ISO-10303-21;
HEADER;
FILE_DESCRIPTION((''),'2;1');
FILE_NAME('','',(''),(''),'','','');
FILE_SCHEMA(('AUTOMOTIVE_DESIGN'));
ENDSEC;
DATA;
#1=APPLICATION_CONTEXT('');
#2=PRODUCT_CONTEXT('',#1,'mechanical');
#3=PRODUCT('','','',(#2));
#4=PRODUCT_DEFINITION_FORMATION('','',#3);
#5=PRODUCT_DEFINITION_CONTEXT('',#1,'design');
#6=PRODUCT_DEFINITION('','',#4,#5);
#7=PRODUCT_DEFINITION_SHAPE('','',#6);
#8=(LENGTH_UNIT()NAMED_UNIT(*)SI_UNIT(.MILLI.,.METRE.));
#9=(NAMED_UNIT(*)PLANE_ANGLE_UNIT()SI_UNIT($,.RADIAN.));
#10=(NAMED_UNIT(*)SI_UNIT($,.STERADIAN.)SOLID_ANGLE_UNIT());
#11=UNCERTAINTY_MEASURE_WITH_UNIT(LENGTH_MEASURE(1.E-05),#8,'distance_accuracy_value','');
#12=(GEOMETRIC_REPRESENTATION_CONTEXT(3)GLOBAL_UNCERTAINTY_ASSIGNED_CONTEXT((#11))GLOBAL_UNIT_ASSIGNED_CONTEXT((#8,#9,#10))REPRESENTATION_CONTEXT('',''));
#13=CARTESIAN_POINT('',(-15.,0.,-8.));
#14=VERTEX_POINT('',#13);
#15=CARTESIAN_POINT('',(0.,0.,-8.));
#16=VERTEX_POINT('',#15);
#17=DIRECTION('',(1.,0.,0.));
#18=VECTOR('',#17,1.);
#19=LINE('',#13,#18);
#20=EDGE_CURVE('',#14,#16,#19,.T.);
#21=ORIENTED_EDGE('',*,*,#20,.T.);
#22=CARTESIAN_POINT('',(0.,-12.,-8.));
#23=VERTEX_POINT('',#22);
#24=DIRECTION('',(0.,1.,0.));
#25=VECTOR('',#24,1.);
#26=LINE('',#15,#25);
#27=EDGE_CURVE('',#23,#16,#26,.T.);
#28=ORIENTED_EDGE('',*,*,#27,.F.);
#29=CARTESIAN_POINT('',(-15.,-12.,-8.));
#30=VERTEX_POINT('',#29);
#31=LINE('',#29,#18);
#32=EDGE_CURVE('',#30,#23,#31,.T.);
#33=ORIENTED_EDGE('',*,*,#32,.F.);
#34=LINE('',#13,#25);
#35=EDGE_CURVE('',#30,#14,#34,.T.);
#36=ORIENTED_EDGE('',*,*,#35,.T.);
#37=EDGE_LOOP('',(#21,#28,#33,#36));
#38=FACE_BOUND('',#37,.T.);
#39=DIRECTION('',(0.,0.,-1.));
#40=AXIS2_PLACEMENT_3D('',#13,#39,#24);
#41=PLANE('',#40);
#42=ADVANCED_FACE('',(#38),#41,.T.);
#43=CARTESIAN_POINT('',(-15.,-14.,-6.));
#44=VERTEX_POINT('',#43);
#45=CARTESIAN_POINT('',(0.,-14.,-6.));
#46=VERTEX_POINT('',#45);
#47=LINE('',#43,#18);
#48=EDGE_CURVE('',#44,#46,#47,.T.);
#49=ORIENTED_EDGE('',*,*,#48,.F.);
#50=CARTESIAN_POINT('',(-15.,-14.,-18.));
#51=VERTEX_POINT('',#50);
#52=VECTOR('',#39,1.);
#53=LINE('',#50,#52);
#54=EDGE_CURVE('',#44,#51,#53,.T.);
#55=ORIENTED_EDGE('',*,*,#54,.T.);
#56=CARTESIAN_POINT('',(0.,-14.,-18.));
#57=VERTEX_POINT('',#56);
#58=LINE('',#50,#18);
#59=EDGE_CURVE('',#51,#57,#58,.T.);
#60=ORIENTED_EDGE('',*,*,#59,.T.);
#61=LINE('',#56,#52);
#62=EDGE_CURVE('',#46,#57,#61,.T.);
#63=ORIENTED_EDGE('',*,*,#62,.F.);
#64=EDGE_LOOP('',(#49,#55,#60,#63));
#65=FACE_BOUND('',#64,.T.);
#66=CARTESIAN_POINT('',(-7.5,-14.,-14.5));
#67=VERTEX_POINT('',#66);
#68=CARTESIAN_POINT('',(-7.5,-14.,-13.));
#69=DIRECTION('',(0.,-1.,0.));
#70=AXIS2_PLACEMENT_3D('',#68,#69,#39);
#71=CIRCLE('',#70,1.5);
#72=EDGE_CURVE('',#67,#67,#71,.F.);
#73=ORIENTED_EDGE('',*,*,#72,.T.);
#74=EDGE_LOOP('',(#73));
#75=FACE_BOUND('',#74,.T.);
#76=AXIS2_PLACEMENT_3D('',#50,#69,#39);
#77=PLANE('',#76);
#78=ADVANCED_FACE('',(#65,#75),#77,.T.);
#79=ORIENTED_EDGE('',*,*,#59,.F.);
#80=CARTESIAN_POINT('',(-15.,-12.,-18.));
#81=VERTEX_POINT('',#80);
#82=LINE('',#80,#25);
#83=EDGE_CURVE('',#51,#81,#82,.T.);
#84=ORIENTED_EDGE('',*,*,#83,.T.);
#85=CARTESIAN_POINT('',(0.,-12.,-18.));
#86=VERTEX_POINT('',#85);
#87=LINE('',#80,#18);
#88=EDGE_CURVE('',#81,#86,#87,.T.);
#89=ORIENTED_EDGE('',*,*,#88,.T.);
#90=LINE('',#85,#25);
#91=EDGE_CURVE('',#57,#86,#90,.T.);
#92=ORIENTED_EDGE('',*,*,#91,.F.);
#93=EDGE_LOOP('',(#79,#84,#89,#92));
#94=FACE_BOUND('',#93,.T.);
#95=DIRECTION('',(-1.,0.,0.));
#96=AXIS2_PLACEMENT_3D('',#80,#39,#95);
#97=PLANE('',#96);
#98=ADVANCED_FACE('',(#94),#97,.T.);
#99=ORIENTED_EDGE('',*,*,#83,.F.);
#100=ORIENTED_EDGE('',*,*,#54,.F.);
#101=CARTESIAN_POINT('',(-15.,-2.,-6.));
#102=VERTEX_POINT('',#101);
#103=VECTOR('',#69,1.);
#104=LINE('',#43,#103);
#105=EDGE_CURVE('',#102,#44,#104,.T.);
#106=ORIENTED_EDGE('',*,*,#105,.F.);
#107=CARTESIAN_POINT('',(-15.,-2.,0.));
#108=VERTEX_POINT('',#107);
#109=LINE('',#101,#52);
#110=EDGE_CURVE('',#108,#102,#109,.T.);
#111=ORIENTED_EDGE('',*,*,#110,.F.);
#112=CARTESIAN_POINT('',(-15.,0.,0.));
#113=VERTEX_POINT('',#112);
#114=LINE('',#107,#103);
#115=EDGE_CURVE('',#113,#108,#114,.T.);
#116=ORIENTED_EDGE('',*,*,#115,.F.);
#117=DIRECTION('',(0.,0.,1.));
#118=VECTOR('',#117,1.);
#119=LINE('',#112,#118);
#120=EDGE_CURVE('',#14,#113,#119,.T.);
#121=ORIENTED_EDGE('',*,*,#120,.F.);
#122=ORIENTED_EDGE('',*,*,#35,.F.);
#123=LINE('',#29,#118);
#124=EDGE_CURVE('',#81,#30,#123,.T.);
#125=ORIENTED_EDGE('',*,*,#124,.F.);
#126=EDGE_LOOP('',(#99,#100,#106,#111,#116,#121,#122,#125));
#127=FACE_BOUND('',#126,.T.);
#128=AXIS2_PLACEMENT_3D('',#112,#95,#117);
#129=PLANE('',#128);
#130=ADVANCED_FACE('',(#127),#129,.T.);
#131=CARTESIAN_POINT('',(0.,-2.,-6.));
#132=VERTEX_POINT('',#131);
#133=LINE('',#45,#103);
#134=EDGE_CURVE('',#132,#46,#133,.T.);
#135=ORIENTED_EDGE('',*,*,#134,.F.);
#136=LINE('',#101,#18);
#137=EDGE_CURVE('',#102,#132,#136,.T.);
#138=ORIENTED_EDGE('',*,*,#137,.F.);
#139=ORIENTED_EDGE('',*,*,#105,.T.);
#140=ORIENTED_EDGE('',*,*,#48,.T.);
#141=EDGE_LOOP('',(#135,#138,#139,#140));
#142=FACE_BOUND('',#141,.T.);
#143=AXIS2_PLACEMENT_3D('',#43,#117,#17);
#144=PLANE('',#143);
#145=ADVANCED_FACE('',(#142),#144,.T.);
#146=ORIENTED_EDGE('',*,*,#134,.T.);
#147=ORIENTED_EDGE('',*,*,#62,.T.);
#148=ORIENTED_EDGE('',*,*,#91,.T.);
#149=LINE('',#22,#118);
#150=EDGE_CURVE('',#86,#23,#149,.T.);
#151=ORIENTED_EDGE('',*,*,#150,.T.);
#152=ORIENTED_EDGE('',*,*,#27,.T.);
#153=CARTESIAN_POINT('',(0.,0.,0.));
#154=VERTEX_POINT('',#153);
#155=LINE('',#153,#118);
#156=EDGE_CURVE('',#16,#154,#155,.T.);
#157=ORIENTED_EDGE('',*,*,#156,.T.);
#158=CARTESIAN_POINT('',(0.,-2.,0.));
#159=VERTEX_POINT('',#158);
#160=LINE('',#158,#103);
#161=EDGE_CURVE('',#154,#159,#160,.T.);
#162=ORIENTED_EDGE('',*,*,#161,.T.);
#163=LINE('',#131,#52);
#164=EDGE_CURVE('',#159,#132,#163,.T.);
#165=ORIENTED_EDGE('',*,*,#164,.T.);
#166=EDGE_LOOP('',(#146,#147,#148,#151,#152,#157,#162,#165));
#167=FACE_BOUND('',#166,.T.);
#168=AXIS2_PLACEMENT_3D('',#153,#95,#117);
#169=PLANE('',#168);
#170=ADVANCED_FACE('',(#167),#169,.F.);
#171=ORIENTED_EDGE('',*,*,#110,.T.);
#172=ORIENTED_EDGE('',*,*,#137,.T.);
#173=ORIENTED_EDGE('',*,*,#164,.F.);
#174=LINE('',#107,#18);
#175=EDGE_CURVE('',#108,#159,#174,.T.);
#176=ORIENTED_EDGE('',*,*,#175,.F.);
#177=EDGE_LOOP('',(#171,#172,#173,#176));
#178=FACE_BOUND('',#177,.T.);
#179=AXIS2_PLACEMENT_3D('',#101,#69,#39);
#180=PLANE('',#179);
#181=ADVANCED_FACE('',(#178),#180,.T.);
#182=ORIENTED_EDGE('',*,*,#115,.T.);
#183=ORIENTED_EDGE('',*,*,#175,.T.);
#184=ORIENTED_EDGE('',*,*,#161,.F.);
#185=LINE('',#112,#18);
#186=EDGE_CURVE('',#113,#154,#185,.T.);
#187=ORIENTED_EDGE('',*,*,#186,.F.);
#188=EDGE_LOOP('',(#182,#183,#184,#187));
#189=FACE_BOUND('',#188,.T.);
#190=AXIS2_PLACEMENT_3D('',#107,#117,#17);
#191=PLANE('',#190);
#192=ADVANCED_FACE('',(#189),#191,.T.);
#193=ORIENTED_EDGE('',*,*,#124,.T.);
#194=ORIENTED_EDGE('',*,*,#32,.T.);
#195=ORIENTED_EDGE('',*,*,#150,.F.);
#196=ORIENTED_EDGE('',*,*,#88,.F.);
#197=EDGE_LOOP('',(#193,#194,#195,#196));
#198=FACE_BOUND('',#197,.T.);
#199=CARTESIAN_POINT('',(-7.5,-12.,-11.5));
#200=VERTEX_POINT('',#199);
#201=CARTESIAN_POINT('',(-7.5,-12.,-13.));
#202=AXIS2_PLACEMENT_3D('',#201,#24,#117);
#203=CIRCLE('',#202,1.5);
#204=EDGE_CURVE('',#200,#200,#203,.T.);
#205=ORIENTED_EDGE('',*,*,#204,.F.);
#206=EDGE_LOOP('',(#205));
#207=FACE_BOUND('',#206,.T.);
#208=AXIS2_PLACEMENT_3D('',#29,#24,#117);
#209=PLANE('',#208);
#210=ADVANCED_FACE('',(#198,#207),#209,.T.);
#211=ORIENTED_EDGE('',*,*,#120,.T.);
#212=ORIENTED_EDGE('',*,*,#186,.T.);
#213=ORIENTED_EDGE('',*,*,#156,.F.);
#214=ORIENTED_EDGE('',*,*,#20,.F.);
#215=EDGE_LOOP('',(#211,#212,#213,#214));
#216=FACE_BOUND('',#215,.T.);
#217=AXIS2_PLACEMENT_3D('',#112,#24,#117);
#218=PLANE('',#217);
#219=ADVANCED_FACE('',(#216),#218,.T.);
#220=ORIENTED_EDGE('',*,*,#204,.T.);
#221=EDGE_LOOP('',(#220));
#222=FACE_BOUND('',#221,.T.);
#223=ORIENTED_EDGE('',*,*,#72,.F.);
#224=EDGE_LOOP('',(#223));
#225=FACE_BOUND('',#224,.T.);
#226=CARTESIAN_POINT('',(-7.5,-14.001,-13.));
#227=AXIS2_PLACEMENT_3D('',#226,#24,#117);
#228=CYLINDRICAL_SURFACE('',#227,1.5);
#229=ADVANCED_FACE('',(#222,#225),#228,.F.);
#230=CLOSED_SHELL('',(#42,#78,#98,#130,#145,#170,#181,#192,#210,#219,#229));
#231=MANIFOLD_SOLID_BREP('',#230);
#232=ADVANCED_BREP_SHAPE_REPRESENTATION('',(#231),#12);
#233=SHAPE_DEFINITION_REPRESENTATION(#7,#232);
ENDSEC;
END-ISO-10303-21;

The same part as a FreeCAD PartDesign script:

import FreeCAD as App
import Part
import Sketcher

V = App.Vector
Q = App.Units.Quantity


def add_polygon(sketch, points):
    """Adds a closed chain of lines whose ends are joined by coincident constraints."""
    first, n = sketch.GeometryCount, len(points)
    for a, b in zip(points, points[1:] + points[:1]):
        sketch.addGeometry(Part.LineSegment(App.Vector(*a, 0), App.Vector(*b, 0)), False)
    for i in range(n):
        sketch.addConstraint(Sketcher.Constraint("Coincident", first + i, 2, first + (i + 1) % n, 1))

doc = App.newDocument("Part")
body = doc.addObject("PartDesign::Body", "Body")

sketch1 = body.newObject("Sketcher::SketchObject", "Sketch")
sketch1.AttachmentSupport = (doc.getObject("YZ_Plane"), [""])
sketch1.MapMode = "FlatFace"
add_polygon(sketch1, [(0, -8), (0, 0), (-2, 0), (-2, -6), (-14, -6), (-14, -18), (-12, -18), (-12, -8)])
sketch1.addConstraint(Sketcher.Constraint("Vertical", 0))
sketch1.addConstraint(Sketcher.Constraint("Horizontal", 1))
sketch1.addConstraint(Sketcher.Constraint("Vertical", 2))
sketch1.addConstraint(Sketcher.Constraint("Horizontal", 3))
sketch1.addConstraint(Sketcher.Constraint("Vertical", 4))
sketch1.addConstraint(Sketcher.Constraint("Horizontal", 5))
sketch1.addConstraint(Sketcher.Constraint("Vertical", 6))
sketch1.addConstraint(Sketcher.Constraint("Horizontal", 7))
sketch1.addConstraint(Sketcher.Constraint("Coincident", 0, 2, -1, 1))
sketch1.addConstraint(Sketcher.Constraint("Equal", 1, 5))
sketch1.addConstraint(Sketcher.Constraint("Equal", 7, 4))
sketch1.addConstraint(Sketcher.Constraint("DistanceX", 1, 2, 1, 1, Q("2 mm")))
sketch1.addConstraint(Sketcher.Constraint("DistanceX", 3, 2, 3, 1, Q("12 mm")))
sketch1.addConstraint(Sketcher.Constraint("DistanceY", 0, 1, 0, 2, Q("8 mm")))
sketch1.addConstraint(Sketcher.Constraint("DistanceY", 2, 2, 2, 1, Q("6 mm")))
pad1 = body.newObject("PartDesign::Pad", "Pad")
pad1.Profile = sketch1
pad1.Length = 15
pad1.Reversed = True

sketch2 = body.newObject("Sketcher::SketchObject", "Sketch001")
sketch2.AttachmentSupport = (doc.getObject("XZ_Plane"), [""])
sketch2.MapMode = "FlatFace"
sketch2.AttachmentOffset = App.Placement(V(0, 0, 12), App.Rotation())
sketch2.addGeometry(Part.Circle(V(-7.5, -13, 0), V(0, 0, 1), 1.5), False)
sketch2.addConstraint(Sketcher.Constraint("Diameter", 0, Q("3 mm")))
sketch2.addConstraint(Sketcher.Constraint("DistanceY", 0, 3, -1, 1, Q("13 mm")))
sketch2.addConstraint(Sketcher.Constraint("DistanceX", 0, 3, -1, 1, Q("7.5 mm")))
pocket1 = body.newObject("PartDesign::Pocket", "Pocket")
pocket1.Profile = sketch2
pocket1.Type = "UpToFirst"
pocket1.Reversed = True

doc.recompute()
